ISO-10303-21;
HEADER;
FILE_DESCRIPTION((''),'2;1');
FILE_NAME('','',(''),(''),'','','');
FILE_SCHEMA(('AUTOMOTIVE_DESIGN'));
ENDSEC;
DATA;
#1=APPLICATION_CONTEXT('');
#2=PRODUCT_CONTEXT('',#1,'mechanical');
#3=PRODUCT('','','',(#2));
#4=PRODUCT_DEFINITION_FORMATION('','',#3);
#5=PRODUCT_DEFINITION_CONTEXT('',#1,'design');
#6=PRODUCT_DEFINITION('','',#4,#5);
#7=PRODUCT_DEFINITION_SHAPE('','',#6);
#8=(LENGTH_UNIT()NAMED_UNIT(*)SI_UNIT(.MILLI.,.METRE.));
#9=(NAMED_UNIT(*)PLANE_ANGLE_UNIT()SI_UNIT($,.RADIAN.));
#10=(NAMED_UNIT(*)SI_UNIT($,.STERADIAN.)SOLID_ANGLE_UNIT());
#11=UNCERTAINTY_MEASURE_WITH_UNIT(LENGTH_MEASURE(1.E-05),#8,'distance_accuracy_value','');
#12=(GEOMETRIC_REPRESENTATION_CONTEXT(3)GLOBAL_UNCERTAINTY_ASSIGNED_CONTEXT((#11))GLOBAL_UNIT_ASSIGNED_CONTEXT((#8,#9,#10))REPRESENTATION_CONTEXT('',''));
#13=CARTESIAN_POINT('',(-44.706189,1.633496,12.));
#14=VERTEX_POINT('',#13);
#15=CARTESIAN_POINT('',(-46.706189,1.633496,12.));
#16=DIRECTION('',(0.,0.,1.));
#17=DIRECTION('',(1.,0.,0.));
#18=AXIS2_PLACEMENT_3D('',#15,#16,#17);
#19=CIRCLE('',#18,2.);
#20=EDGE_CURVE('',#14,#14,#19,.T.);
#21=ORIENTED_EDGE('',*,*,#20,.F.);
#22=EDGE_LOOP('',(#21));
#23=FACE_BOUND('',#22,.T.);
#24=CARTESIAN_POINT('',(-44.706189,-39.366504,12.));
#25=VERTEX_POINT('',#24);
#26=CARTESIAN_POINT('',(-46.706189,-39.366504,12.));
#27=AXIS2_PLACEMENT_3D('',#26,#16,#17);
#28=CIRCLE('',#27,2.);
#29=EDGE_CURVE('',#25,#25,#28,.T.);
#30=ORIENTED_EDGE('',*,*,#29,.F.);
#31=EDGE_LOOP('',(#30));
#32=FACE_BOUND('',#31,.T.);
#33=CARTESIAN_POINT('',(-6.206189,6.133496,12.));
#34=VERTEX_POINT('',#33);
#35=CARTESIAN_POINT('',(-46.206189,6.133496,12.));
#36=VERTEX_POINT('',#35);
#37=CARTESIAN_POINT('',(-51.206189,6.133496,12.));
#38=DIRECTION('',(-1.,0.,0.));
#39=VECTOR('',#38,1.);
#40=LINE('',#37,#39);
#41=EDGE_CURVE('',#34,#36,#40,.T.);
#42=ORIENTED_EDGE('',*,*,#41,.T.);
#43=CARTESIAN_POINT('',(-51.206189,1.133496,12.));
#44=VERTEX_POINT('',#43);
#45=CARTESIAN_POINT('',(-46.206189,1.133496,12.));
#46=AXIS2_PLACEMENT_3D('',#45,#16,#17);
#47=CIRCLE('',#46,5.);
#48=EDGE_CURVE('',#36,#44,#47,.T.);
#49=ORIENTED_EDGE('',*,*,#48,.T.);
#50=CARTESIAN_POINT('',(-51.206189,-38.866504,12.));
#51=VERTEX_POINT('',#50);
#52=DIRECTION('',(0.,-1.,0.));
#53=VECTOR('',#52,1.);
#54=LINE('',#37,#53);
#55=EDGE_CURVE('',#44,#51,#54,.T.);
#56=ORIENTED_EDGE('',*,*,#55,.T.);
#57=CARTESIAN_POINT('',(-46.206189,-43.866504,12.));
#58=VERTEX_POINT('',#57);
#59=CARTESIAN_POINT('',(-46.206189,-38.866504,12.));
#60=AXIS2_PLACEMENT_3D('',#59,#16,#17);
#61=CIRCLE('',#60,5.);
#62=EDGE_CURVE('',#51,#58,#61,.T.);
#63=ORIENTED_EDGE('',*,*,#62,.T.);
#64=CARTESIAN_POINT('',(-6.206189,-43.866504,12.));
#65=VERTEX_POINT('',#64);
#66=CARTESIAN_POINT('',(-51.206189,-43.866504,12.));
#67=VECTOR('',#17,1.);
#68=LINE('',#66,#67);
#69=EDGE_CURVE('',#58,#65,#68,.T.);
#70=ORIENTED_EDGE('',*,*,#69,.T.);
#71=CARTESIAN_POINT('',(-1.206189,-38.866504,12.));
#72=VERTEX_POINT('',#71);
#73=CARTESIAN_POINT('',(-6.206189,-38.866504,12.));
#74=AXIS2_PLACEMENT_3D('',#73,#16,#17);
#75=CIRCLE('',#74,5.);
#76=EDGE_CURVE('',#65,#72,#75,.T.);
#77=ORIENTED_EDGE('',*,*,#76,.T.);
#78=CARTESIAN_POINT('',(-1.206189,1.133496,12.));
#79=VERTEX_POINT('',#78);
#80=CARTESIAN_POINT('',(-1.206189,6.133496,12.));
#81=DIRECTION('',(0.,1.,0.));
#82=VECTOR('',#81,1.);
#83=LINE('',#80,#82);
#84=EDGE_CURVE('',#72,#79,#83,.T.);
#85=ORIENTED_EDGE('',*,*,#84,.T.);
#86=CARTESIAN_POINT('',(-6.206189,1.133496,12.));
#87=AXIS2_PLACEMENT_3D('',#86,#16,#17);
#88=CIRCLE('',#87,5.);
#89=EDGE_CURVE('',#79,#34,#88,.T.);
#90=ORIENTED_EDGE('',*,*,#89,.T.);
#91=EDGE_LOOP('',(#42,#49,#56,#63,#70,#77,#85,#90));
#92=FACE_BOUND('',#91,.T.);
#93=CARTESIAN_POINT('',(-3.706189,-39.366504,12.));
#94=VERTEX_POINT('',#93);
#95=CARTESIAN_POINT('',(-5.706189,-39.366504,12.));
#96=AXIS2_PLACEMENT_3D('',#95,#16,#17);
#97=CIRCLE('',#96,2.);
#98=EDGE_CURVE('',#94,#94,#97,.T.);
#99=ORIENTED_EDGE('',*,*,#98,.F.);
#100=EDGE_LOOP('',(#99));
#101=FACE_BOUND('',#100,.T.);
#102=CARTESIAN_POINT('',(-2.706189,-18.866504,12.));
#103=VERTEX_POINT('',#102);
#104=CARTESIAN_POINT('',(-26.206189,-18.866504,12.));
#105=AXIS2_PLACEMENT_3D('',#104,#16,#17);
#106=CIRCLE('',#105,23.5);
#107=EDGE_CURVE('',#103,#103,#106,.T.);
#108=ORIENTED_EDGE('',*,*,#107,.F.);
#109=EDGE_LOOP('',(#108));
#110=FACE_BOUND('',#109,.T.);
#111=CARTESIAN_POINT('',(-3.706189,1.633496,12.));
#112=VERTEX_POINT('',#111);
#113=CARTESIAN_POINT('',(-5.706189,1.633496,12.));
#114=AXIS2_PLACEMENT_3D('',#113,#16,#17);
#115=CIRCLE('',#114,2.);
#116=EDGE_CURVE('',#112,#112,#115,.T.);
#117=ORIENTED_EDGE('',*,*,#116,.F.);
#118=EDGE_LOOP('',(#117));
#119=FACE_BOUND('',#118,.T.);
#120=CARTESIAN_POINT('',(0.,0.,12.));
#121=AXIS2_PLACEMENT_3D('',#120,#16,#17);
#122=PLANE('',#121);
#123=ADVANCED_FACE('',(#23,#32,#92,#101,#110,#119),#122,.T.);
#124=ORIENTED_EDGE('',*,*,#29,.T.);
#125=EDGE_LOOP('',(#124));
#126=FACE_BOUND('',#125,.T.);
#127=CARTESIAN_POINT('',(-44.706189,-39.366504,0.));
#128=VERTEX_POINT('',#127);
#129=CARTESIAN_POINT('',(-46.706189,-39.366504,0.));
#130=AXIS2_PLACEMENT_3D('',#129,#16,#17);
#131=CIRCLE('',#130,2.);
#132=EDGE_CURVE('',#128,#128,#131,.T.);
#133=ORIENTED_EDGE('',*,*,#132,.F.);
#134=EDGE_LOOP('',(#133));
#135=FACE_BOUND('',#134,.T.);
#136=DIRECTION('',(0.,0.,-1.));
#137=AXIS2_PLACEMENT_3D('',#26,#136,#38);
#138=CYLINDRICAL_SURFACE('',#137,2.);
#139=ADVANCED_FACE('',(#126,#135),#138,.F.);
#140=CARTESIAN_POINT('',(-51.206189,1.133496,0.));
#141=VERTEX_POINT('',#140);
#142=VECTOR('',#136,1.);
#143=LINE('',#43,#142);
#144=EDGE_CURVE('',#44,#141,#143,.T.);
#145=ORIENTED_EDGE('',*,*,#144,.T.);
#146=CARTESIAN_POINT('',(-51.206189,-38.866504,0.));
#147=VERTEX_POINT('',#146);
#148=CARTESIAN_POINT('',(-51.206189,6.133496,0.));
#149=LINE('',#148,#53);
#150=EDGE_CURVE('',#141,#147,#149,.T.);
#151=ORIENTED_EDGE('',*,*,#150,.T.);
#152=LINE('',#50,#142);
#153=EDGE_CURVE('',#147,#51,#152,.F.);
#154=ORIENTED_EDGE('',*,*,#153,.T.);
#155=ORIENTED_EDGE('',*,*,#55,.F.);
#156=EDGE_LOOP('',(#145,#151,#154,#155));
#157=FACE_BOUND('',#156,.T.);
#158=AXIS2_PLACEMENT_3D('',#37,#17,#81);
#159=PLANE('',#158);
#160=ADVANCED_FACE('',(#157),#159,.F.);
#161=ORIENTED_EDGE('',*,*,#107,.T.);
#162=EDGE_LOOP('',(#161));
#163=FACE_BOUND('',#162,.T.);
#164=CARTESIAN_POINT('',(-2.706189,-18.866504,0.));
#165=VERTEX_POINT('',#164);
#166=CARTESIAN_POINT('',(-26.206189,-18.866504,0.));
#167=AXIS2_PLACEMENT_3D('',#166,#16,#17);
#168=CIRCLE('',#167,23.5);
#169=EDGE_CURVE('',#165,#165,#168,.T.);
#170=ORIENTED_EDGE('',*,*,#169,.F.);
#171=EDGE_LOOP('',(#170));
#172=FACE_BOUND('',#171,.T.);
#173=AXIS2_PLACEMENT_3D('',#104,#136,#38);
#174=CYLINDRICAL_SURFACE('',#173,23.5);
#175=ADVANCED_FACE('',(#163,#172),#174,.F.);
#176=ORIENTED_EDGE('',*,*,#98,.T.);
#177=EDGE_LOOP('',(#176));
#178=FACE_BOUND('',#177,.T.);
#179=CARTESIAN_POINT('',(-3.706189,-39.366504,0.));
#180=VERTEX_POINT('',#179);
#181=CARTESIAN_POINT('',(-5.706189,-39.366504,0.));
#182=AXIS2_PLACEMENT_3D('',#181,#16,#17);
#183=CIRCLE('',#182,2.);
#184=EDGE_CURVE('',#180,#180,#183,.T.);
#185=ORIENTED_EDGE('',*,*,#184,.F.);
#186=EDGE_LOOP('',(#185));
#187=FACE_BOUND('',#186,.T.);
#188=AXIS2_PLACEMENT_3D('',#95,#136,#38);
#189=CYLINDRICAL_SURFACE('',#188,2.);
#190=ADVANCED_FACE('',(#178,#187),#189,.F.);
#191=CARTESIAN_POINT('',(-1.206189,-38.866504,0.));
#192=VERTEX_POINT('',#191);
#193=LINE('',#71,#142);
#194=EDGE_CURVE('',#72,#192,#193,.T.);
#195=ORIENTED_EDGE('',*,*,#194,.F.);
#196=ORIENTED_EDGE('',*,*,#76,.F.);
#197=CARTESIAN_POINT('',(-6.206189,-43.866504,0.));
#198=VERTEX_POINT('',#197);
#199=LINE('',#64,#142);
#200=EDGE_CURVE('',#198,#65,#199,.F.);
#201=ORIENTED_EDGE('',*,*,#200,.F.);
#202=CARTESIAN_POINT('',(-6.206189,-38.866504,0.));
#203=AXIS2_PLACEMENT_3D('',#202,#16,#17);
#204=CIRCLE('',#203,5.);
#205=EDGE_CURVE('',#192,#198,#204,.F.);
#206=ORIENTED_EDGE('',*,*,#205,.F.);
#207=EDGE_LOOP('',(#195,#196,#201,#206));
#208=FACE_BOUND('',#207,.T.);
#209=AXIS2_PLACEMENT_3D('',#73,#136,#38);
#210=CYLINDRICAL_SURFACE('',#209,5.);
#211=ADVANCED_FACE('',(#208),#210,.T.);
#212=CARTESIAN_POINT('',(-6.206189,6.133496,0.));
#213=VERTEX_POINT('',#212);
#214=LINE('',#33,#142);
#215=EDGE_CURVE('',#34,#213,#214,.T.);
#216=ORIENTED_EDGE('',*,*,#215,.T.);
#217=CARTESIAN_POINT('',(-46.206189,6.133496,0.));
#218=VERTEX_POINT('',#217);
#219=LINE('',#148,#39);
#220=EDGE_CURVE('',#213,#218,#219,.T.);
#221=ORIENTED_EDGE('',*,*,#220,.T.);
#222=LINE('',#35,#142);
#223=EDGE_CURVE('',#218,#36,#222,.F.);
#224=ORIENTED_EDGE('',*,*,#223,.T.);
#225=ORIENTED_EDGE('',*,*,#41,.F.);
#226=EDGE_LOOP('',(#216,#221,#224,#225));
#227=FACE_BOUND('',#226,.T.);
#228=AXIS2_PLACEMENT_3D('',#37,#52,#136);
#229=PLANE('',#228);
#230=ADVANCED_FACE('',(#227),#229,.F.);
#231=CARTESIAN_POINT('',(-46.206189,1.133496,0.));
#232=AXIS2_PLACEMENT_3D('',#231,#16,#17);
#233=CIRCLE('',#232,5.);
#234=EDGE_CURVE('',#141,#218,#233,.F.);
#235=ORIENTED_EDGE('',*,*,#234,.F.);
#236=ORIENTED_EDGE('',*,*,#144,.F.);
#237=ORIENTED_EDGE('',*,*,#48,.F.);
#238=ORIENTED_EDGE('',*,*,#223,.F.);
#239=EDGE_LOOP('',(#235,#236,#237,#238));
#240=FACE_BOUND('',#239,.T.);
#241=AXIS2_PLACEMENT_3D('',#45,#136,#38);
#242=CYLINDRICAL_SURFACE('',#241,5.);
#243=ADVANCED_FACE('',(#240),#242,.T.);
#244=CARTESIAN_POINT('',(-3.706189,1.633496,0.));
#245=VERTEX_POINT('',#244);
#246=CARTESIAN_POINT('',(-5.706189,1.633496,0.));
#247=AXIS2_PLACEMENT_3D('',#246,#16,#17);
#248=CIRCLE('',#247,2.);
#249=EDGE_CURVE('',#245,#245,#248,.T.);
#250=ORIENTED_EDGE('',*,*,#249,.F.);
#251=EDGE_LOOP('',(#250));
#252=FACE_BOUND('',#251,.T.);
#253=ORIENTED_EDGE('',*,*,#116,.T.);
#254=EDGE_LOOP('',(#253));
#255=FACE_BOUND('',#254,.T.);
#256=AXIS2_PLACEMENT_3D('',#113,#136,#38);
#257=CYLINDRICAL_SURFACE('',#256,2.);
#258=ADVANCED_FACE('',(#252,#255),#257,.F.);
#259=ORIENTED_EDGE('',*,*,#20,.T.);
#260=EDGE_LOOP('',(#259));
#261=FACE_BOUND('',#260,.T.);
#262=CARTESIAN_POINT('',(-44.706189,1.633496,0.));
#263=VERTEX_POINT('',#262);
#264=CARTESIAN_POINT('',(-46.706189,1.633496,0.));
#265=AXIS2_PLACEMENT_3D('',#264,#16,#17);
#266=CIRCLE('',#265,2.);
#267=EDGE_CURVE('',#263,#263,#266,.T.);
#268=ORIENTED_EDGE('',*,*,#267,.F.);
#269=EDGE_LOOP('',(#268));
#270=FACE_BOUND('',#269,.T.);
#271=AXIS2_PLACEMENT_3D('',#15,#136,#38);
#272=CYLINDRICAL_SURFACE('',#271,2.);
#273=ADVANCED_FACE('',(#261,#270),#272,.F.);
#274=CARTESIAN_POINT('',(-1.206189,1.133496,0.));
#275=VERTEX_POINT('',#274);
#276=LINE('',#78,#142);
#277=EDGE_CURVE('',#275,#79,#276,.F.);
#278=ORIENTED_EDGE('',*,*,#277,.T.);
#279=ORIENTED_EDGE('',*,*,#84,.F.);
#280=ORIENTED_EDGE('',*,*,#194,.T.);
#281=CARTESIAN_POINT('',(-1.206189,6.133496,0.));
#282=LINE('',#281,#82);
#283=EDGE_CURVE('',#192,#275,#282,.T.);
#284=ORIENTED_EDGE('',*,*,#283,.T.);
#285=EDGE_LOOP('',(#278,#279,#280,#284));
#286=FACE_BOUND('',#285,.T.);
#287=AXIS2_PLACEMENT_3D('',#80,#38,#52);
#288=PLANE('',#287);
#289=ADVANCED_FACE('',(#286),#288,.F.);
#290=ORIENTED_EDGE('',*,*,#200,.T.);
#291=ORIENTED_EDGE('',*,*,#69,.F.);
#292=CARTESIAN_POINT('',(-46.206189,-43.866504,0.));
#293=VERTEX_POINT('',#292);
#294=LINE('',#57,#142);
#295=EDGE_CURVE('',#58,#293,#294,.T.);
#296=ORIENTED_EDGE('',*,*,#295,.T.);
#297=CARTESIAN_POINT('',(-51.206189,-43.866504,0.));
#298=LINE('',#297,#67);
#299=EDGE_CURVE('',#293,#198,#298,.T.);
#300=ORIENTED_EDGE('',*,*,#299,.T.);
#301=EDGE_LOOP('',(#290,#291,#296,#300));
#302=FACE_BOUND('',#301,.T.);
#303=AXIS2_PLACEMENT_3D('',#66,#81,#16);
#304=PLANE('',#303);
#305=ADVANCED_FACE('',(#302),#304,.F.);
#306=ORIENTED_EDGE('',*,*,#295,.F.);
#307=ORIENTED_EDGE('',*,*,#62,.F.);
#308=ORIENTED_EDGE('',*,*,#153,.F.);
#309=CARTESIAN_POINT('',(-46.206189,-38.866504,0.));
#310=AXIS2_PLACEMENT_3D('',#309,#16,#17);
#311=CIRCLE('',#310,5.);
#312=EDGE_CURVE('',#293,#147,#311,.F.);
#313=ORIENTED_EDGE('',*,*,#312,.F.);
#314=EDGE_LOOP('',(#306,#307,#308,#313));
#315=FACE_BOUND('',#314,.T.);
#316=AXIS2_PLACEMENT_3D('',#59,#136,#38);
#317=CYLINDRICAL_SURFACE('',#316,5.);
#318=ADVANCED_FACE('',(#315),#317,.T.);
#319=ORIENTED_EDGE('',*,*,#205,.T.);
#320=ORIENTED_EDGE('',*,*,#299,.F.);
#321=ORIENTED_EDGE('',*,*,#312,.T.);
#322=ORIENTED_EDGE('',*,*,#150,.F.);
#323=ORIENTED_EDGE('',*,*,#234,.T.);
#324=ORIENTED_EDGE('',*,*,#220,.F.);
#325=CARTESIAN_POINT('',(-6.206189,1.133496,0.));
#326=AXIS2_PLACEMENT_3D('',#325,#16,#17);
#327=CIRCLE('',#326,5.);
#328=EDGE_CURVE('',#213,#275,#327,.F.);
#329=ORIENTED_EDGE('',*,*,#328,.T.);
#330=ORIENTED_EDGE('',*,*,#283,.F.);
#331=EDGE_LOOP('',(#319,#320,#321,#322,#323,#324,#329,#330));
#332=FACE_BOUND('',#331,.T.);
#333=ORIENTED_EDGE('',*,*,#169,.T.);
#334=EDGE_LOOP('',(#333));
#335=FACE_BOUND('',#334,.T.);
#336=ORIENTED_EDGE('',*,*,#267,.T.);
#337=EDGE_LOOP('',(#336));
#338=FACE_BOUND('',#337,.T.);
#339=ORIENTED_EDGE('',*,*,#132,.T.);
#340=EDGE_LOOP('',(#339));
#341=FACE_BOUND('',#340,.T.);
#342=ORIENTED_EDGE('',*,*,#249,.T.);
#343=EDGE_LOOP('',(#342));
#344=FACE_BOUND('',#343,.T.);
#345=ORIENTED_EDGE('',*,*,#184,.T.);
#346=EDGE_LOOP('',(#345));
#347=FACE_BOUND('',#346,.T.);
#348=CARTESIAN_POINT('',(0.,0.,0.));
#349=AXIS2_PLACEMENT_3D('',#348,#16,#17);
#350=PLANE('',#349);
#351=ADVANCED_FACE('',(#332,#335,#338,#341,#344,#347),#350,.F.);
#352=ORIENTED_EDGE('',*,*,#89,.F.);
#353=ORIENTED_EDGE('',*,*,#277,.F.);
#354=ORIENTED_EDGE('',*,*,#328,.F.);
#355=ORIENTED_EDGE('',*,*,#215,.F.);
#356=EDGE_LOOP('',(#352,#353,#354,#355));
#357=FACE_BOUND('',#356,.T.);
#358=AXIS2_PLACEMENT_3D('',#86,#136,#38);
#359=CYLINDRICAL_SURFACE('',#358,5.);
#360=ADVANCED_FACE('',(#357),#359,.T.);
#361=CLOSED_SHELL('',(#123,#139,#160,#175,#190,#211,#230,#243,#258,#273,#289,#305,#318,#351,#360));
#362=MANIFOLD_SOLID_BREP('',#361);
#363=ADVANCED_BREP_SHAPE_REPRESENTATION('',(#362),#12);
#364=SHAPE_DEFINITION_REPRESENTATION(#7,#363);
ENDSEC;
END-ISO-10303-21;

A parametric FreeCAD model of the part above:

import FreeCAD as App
import Part
import Sketcher

V = App.Vector


def edges_at(feature, points):
    """Names of the edges that pass closest to the given points."""
    edges = feature.Shape.Edges
    near = lambda p: min(range(len(edges)), key=lambda i: edges[i].distToShape(Part.Vertex(*p))[0])
    return sorted({f"Edge{near(p) + 1}" for p in points})


def add_polygon(sketch, points):
    """Adds a closed chain of lines whose ends are joined by coincident constraints."""
    first, n = sketch.GeometryCount, len(points)
    for a, b in zip(points, points[1:] + points[:1]):
        sketch.addGeometry(Part.LineSegment(App.Vector(*a, 0), App.Vector(*b, 0)), False)
    for i in range(n):
        sketch.addConstraint(Sketcher.Constraint("Coincident", first + i, 2, first + (i + 1) % n, 1))

doc = App.newDocument("Part")
body = doc.addObject("PartDesign::Body", "Body")

# Sketch on XY plane
sketch1 = body.newObject("Sketcher::SketchObject", "Sketch")
sketch1.AttachmentSupport = (doc.getObject("XY_Plane"), [""])
sketch1.MapMode = "FlatFace"
add_polygon(sketch1, [(-51.2, 6.1), (-51.2, -43.9), (-1.2, -43.9), (-1.2, 6.1)])  # lines 0-3
sketch1.addGeometry(Part.Circle(V(-46.7, -39.4, 0), V(0, 0, 1), 2), False)  # 4
sketch1.addGeometry(Part.Circle(V(-5.7, -39.4, 0), V(0, 0, 1), 2), False)  # 5
sketch1.addGeometry(Part.Circle(V(-46.7, 1.6, 0), V(0, 0, 1), 2), False)  # 6
sketch1.addGeometry(Part.Circle(V(-26.2, -18.9, 0), V(0, 0, 1), 23.5), False)  # 7
sketch1.addGeometry(Part.Circle(V(-5.7, 1.6, 0), V(0, 0, 1), 2), False)  # 8
sketch1.addConstraint(Sketcher.Constraint("Vertical", 0))
sketch1.addConstraint(Sketcher.Constraint("Horizontal", 1))
sketch1.addConstraint(Sketcher.Constraint("Vertical", 2))
sketch1.addConstraint(Sketcher.Constraint("Horizontal", 3))
sketch1.addConstraint(Sketcher.Constraint("Equal", 4, 5))
sketch1.addConstraint(Sketcher.Constraint("Equal", 5, 6))
sketch1.addConstraint(Sketcher.Constraint("Equal", 6, 8))
sketch1.addConstraint(Sketcher.Constraint("Horizontal", 4, 3, 5, 3))
sketch1.addConstraint(Sketcher.Constraint("Horizontal", 6, 3, 8, 3))
sketch1.addConstraint(Sketcher.Constraint("Vertical", 4, 3, 6, 3))
sketch1.addConstraint(Sketcher.Constraint("Vertical", 5, 3, 8, 3))
sketch1.addConstraint(Sketcher.Constraint("Equal", 3, 0))
sketch1.addConstraint(Sketcher.Constraint("Diameter", 4, 4.0))
sketch1.addConstraint(Sketcher.Constraint("Diameter", 7, 47.0))
sketch1.addConstraint(Sketcher.Constraint("DistanceX", 1, 1, 1, 2, 50.0))
sketch1.addConstraint(Sketcher.Constraint("DistanceX", 4, 3, 5, 3, 41.0))
sketch1.addConstraint(Sketcher.Constraint("DistanceY", 4, 3, 6, 3, 41.0))
sketch1.addConstraint(Sketcher.Constraint("DistanceX", 0, 2, 7, 3, 25.0))
sketch1.addConstraint(Sketcher.Constraint("DistanceY", 0, 2, 7, 3, 25.0))
sketch1.addConstraint(Sketcher.Constraint("DistanceX", 4, 3, 7, 3, 20.5))
sketch1.addConstraint(Sketcher.Constraint("DistanceY", 4, 3, 7, 3, 20.5))
sketch1.addConstraint(Sketcher.Constraint("DistanceX", 4, 3, -1, 1, 46.706189))
sketch1.addConstraint(Sketcher.Constraint("DistanceY", 4, 3, -1, 1, 39.366504))
pad1 = body.newObject("PartDesign::Pad", "Pad")
pad1.Profile = sketch1
pad1.Length = 12
doc.recompute()

fillet = body.newObject("PartDesign::Fillet", "Fillet")
fillet.Base = (pad1, edges_at(pad1, [
    (-51.206, 6.133, 6),
    (-1.206, 6.133, 6),
    (-1.206, -43.867, 6),
    (-51.206, -43.867, 6),
]))
fillet.Radius = 5

doc.recompute()
